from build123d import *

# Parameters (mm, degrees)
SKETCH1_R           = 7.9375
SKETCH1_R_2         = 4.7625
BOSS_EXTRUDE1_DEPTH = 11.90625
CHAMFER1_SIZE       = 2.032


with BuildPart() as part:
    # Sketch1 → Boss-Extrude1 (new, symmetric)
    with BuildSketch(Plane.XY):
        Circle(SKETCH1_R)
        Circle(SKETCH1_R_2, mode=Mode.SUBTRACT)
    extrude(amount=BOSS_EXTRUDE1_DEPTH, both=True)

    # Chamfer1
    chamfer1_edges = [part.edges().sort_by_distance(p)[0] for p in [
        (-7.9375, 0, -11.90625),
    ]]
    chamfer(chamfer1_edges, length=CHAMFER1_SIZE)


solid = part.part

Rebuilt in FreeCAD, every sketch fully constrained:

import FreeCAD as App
import Part
import Sketcher
from FreeCAD import Vector
Q = App.Units.Quantity


def edges_at(feature, points):
    """Names of the edges that pass closest to the given points."""
    edges = feature.Shape.Edges
    near = lambda p: min(range(len(edges)), key=lambda i: edges[i].distToShape(Part.Vertex(*p))[0])
    return sorted({f"Edge{near(p) + 1}" for p in points})

doc = App.newDocument("Part")
body = doc.addObject("PartDesign::Body", "Body")

# Sketch on XY plane
sketch1 = body.newObject("Sketcher::SketchObject", "Sketch")
sketch1.AttachmentSupport = (doc.getObject("XY_Plane"), [""])
sketch1.MapMode = "FlatFace"
sketch1.addGeometry([
    Part.Circle(Vector(0, 0, 0), Vector(0, 0, 1), 7.9),
    Part.Circle(Vector(0, 0, 0), Vector(0, 0, 1), 4.8),
], False)
sketch1.addConstraint([
    Sketcher.Constraint("Coincident", 0, 3, -1, 1),
    Sketcher.Constraint("Coincident", 1, 3, -1, 1),
    Sketcher.Constraint("Diameter", 0, Q("0.625 in")),
    Sketcher.Constraint("Diameter", 1, Q("0.375 in")),
])
pad1 = body.newObject("PartDesign::Pad", "Pad")
pad1.Profile = sketch1
pad1.Length = Q("0.9375 in")
pad1.Midplane = True
doc.recompute()

chamfer = body.newObject("PartDesign::Chamfer", "Chamfer")
chamfer.Base = (pad1, edges_at(pad1, [(-7.938, 0, -11.906)]))
chamfer.Size = Q("0.08 in")

doc.recompute()
